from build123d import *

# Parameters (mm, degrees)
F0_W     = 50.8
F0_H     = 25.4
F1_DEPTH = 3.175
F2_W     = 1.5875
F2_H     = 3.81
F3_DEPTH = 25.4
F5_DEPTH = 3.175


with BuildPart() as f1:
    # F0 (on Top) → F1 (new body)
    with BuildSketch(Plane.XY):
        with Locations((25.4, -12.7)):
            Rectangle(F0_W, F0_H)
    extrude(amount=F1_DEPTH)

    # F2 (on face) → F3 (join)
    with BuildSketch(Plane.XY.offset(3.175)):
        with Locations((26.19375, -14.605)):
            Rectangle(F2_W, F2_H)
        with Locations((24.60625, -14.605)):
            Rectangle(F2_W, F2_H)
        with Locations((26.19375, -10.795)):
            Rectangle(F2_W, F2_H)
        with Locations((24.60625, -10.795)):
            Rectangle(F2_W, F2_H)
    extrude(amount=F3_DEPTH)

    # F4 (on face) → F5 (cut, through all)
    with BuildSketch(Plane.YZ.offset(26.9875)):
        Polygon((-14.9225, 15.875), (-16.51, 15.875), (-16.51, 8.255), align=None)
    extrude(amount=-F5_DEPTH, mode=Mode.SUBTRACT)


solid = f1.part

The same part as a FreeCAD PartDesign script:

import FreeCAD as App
import Part
import Sketcher
from FreeCAD import Vector
Q = App.Units.Quantity


def add_polygon(sketch, points):
    """Adds a closed chain of lines whose ends are joined by coincident constraints."""
    first, n = sketch.GeometryCount, len(points)
    for a, b in zip(points, points[1:] + points[:1]):
        sketch.addGeometry(Part.LineSegment(App.Vector(*a, 0), App.Vector(*b, 0)), False)
    for i in range(n):
        sketch.addConstraint(Sketcher.Constraint("Coincident", first + i, 2, first + (i + 1) % n, 1))

doc = App.newDocument("Part")
body = doc.addObject("PartDesign::Body", "Body")

sketch1 = doc.addObject("Sketcher::SketchObject", "Sketch")
body.addObject(sketch1)
sketch1.AttachmentSupport = (doc.XY_Plane, [""])
sketch1.MapMode = "FlatFace"
add_polygon(sketch1, [(0, 0), (0, -25), (51, -25), (51, 0)])
sketch1.addConstraint([
    Sketcher.Constraint("Vertical", 0),
    Sketcher.Constraint("Horizontal", 1),
    Sketcher.Constraint("Vertical", 2),
    Sketcher.Constraint("Horizontal", 3),
    Sketcher.Constraint("Coincident", 3, 2, -1, 1),
    Sketcher.Constraint("DistanceX", 1, 1, 1, 2, Q("2 in")),
    Sketcher.Constraint("DistanceY", 0, 2, 0, 1, Q("1 in")),
])
pad1 = doc.addObject("PartDesign::Pad", "Pad")
body.addObject(pad1)
pad1.Profile = sketch1
pad1.Length = Q("0.125 in")

sketch2 = doc.addObject("Sketcher::SketchObject", "Sketch001")
body.addObject(sketch2)
sketch2.AttachmentSupport = (doc.XY_Plane, [""])
sketch2.MapMode = "FlatFace"
sketch2.AttachmentOffset = App.Placement(Vector(0, 0, 0.125 * 25.4), App.Rotation())
add_polygon(sketch2, [(27, -16.5), (27, -8.9), (23.8, -8.9), (23.8, -16.5)])
sketch2.addConstraint([
    Sketcher.Constraint("Vertical", 0),
    Sketcher.Constraint("Horizontal", 1),
    Sketcher.Constraint("Vertical", 2),
    Sketcher.Constraint("Horizontal", 3),
    Sketcher.Constraint("DistanceY", 0, 1, 0, 2, Q("0.3 in")),
    Sketcher.Constraint("DistanceX", 1, 2, 1, 1, Q("0.125 in")),
    Sketcher.Constraint("DistanceY", 0, 2, -1, 1, Q("0.35 in")),
    Sketcher.Constraint("DistanceX", -1, 1, 0, 2, Q("1.0625 in")),
])
pad2 = doc.addObject("PartDesign::Pad", "Pad001")
body.addObject(pad2)
pad2.Profile = sketch2
pad2.Length = Q("1 in")

sketch3 = doc.addObject("Sketcher::SketchObject", "Sketch002")
body.addObject(sketch3)
sketch3.AttachmentSupport = (doc.YZ_Plane, [""])
sketch3.MapMode = "FlatFace"
sketch3.AttachmentOffset = App.Placement(Vector(0, 0, 1.0625 * 25.4), App.Rotation())
add_polygon(sketch3, [(-14.9, 15.9), (-16.5, 15.9), (-16.5, 8.3)])
sketch3.addConstraint([
    Sketcher.Constraint("Horizontal", 0),
    Sketcher.Constraint("Vertical", 1),
    Sketcher.Constraint("DistanceY", 1, 2, 1, 1, Q("0.3 in")),
    Sketcher.Constraint("DistanceX", 0, 2, 0, 1, Q("0.0625 in")),
    Sketcher.Constraint("DistanceX", 0, 2, -1, 1, Q("0.65 in")),
    Sketcher.Constraint("DistanceY", -1, 1, 0, 2, Q("0.625 in")),
])
pocket1 = doc.addObject("PartDesign::Pocket", "Pocket")
body.addObject(pocket1)
pocket1.Profile = sketch3
pocket1.Type = "ThroughAll"

doc.recompute()
